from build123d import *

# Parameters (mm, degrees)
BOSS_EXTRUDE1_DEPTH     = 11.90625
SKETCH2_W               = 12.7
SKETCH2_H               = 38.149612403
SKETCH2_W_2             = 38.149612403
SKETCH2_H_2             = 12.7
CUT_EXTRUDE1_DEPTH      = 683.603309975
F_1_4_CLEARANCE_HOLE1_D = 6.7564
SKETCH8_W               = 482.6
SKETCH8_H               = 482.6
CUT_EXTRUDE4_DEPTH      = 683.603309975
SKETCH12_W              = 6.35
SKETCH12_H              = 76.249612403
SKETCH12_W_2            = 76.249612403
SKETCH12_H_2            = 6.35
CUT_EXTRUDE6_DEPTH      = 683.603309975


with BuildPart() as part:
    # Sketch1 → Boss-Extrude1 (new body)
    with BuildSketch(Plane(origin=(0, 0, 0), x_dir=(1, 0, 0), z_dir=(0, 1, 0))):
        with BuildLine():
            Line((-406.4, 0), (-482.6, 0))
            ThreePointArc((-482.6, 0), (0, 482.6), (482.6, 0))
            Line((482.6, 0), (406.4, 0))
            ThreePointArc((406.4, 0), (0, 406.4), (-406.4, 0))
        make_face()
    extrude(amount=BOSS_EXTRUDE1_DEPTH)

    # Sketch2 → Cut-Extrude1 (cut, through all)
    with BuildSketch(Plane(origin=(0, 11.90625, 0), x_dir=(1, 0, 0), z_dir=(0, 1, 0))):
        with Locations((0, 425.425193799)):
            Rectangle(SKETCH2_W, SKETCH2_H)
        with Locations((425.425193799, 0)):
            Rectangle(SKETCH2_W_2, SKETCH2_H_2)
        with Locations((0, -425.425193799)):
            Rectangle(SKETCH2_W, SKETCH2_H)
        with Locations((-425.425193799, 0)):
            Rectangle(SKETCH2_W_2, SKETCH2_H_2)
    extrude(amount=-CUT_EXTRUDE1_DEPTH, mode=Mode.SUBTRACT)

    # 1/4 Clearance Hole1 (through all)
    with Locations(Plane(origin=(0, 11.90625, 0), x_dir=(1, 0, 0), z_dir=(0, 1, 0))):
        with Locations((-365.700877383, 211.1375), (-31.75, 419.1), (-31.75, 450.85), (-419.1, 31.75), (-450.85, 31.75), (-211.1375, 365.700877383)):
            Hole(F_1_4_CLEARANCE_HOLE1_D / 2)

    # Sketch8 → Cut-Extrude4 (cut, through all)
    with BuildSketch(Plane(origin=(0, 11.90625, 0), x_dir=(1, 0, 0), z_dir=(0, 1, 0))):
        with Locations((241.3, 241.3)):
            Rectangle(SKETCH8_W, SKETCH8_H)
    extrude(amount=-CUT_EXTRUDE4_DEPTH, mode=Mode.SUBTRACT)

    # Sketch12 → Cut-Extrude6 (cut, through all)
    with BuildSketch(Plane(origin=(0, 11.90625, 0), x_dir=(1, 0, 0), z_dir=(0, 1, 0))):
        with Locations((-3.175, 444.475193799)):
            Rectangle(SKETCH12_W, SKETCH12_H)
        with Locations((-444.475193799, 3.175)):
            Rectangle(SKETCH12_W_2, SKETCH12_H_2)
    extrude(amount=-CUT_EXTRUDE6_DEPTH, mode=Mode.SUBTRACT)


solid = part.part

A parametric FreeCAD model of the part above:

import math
import FreeCAD as App
import Part
import Sketcher

V = App.Vector
Q = App.Units.Quantity

doc = App.newDocument("Part")
params = doc.addObject("Spreadsheet::Sheet", "Params")
for row, (alias, value) in enumerate([
    ("sketch1_radius", "16 in"),
    ("sketch1_radius2", "19 in"),
    ("pad1_length", "0.46875 in"),
    ("sketch2_width", "0.5 in"),
    ("sketch3_diameter", "0.266 in"),
    ("hole_diameter", "0.266 in"),
    ("sketch4_width", "19 in"),
    ("sketch5_width", "0.25 in"),
], start=1):
    params.set(f"A{row}", alias)
    params.set(f"B{row}", "=" + value)
    params.setAlias(f"B{row}", alias)

body = doc.addObject("PartDesign::Body", "Body")

# Sketch on XZ plane
sketch1 = doc.addObject("Sketcher::SketchObject", "Sketch")
body.addObject(sketch1)
sketch1.AttachmentSupport = (doc.XZ_Plane, [""])
sketch1.MapMode = "FlatFace"
sketch1.addGeometry([
    Part.LineSegment(V(-483, 0, 0), V(-406, 0, 0)),
    Part.ArcOfCircle(Part.Circle(V(0, 0, 0), V(0, 0, 1), 406), math.radians(180), math.radians(360)),
    Part.LineSegment(V(406, 0, 0), V(483, 0, 0)),
    Part.ArcOfCircle(Part.Circle(V(0, 0, 0), V(0, 0, 1), 483), math.radians(180), math.radians(360)),
], False)
sketch1.addConstraint([
    Sketcher.Constraint("Coincident", 0, 2, 1, 1),
    Sketcher.Constraint("Coincident", 1, 2, 2, 1),
    Sketcher.Constraint("Coincident", 2, 2, 3, 2),
    Sketcher.Constraint("Coincident", 3, 1, 0, 1),
    Sketcher.Constraint("Horizontal", 0),
    Sketcher.Constraint("Horizontal", 2),
    Sketcher.Constraint("Coincident", 1, 3, -1, 1),
    Sketcher.Constraint("Coincident", 3, 3, -1, 1),
    Sketcher.Constraint("PointOnObject", 0, 2, -1),
    Sketcher.Constraint("PointOnObject", 2, 2, -1),
    Sketcher.Constraint("Radius", 1, Q("16 in")),
    Sketcher.Constraint("Radius", 3, Q("19 in")),
])
sketch1.setExpression("Constraints[10]", "Params.sketch1_radius")
sketch1.setExpression("Constraints[11]", "Params.sketch1_radius2")
pad1 = doc.addObject("PartDesign::Pad", "Pad")
body.addObject(pad1)
pad1.Profile = sketch1
pad1.setExpression("Length", "Params.pad1_length")
pad1.Reversed = True

# Sketch on XZ plane
sketch2 = doc.addObject("Sketcher::SketchObject", "Sketch001")
body.addObject(sketch2)
sketch2.AttachmentSupport = (doc.XZ_Plane, [""])
sketch2.MapMode = "FlatFace"
sketch2.AttachmentOffset = App.Placement(V(0, 0, -0.46875 * 25.4), App.Rotation())
sketch2.addGeometry([
    Part.LineSegment(V(-6, -444, 0), V(-6, -406, 0)),  # 0
    Part.LineSegment(V(-6, -406, 0), V(6, -406, 0)),  # 1
    Part.LineSegment(V(6, -406, 0), V(6, -444, 0)),  # 2
    Part.LineSegment(V(6, -444, 0), V(-6, -444, 0)),  # 3
    Part.LineSegment(V(406, -6, 0), V(406, 6, 0)),  # 4
    Part.LineSegment(V(406, 6, 0), V(444, 6, 0)),  # 5
    Part.LineSegment(V(444, 6, 0), V(444, -6, 0)),  # 6
    Part.LineSegment(V(444, -6, 0), V(406, -6, 0)),  # 7
    Part.LineSegment(V(-6, 406, 0), V(-6, 444, 0)),  # 8
    Part.LineSegment(V(-6, 444, 0), V(6, 444, 0)),  # 9
    Part.LineSegment(V(6, 444, 0), V(6, 406, 0)),  # 10
    Part.LineSegment(V(6, 406, 0), V(-6, 406, 0)),  # 11
    Part.LineSegment(V(-444, -6, 0), V(-444, 6, 0)),  # 12
    Part.LineSegment(V(-444, 6, 0), V(-406, 6, 0)),  # 13
    Part.LineSegment(V(-406, 6, 0), V(-406, -6, 0)),  # 14
    Part.LineSegment(V(-406, -6, 0), V(-444, -6, 0)),  # 15
], False)
sketch2.addConstraint([
    Sketcher.Constraint("Coincident", 0, 2, 1, 1),
    Sketcher.Constraint("Coincident", 1, 2, 2, 1),
    Sketcher.Constraint("Coincident", 2, 2, 3, 1),
    Sketcher.Constraint("Coincident", 3, 2, 0, 1),
    Sketcher.Constraint("Coincident", 4, 2, 5, 1),
    Sketcher.Constraint("Coincident", 5, 2, 6, 1),
    Sketcher.Constraint("Coincident", 6, 2, 7, 1),
    Sketcher.Constraint("Coincident", 7, 2, 4, 1),
    Sketcher.Constraint("Coincident", 8, 2, 9, 1),
    Sketcher.Constraint("Coincident", 9, 2, 10, 1),
    Sketcher.Constraint("Coincident", 10, 2, 11, 1),
    Sketcher.Constraint("Coincident", 11, 2, 8, 1),
    Sketcher.Constraint("Coincident", 12, 2, 13, 1),
    Sketcher.Constraint("Coincident", 13, 2, 14, 1),
    Sketcher.Constraint("Coincident", 14, 2, 15, 1),
    Sketcher.Constraint("Coincident", 15, 2, 12, 1),
    Sketcher.Constraint("Vertical", 0),
    Sketcher.Constraint("Horizontal", 1),
    Sketcher.Constraint("Vertical", 2),
    Sketcher.Constraint("Horizontal", 3),
    Sketcher.Constraint("Vertical", 4),
    Sketcher.Constraint("Horizontal", 5),
    Sketcher.Constraint("Vertical", 6),
    Sketcher.Constraint("Horizontal", 7),
    Sketcher.Constraint("Vertical", 8),
    Sketcher.Constraint("Horizontal", 9),
    Sketcher.Constraint("Vertical", 10),
    Sketcher.Constraint("Horizontal", 11),
    Sketcher.Constraint("Vertical", 12),
    Sketcher.Constraint("Horizontal", 13),
    Sketcher.Constraint("Vertical", 14),
    Sketcher.Constraint("Horizontal", 15),
    Sketcher.Constraint("Symmetric", 2, 2, 8, 2, -1, 1),
    Sketcher.Constraint("Symmetric", 0, 2, 10, 2, -1, 1),
    Sketcher.Constraint("Symmetric", 6, 2, 12, 2, -1, 1),
    Sketcher.Constraint("Symmetric", 4, 2, 14, 2, -1, 1),
    Sketcher.Constraint("Horizontal", 5, 2, 12, 2),
    Sketcher.Constraint("Vertical", 3, 2, 8, 2),
    Sketcher.Constraint("Equal", 15, 0),
    Sketcher.Constraint("Equal", 11, 4),
    Sketcher.Constraint("DistanceX", 1, 1, 1, 2, Q("0.5 in")),
    Sketcher.Constraint("DistanceY", 2, 2, -1, 1, Q("17.5 in")),
    Sketcher.Constraint("DistanceX", -1, 1, 5, 2, Q("17.5 in")),
    Sketcher.Constraint("DistanceX", 5, 1, 5, 2, 38.149612),
])
sketch2.setExpression("Constraints[40]", "Params.sketch2_width")
pocket1 = doc.addObject("PartDesign::Pocket", "Pocket")
body.addObject(pocket1)
pocket1.Profile = sketch2
pocket1.Type = "ThroughAll"
pocket1.Reversed = True

# Sketch on XZ plane
sketch3 = doc.addObject("Sketcher::SketchObject", "Sketch002")
body.addObject(sketch3)
sketch3.AttachmentSupport = (doc.XZ_Plane, [""])
sketch3.MapMode = "FlatFace"
sketch3.AttachmentOffset = App.Placement(V(0, 0, -0.46875 * 25.4), App.Rotation())
sketch3.addGeometry([
    Part.Circle(V(-365.7, -211.1, 0), V(0, 0, 1), 3.4),  # 0
    Part.Circle(V(-31.8, -419.1, 0), V(0, 0, 1), 3.4),  # 1
    Part.Circle(V(-31.8, -450.9, 0), V(0, 0, 1), 3.4),  # 2
    Part.Circle(V(-419.1, -31.8, 0), V(0, 0, 1), 3.4),  # 3
    Part.Circle(V(-450.9, -31.8, 0), V(0, 0, 1), 3.4),  # 4
    Part.Circle(V(-211.1, -365.7, 0), V(0, 0, 1), 3.4),  # 5
], False)
sketch3.addConstraint([
    Sketcher.Constraint("Equal", 0, 1),
    Sketcher.Constraint("Equal", 1, 2),
    Sketcher.Constraint("Equal", 2, 3),
    Sketcher.Constraint("Equal", 3, 4),
    Sketcher.Constraint("Equal", 4, 5),
    Sketcher.Constraint("Horizontal", 3, 3, 4, 3),
    Sketcher.Constraint("Vertical", 1, 3, 2, 3),
    Sketcher.Constraint("Diameter", 0, Q("0.266 in")),
    Sketcher.Constraint("DistanceY", 1, 3, -1, 1, Q("16.5 in")),
    Sketcher.Constraint("DistanceX", 3, 3, -1, 1, Q("16.5 in")),
    Sketcher.Constraint("DistanceY", 2, 3, 3, 3, Q("16.5 in")),
    Sketcher.Constraint("DistanceX", 4, 3, 1, 3, Q("16.5 in")),
    Sketcher.Constraint("DistanceX", 1, 3, -1, 1, Q("1.25 in")),
    Sketcher.Constraint("DistanceY", 2, 3, -1, 1, Q("17.75 in")),
    Sketcher.Constraint("DistanceY", 0, 3, -1, 1, Q("8.3125 in")),
    Sketcher.Constraint("DistanceX", 5, 3, -1, 1, Q("8.3125 in")),
    Sketcher.Constraint("DistanceX", 0, 3, -1, 1, 365.700877),
    Sketcher.Constraint("DistanceY", 5, 3, -1, 1, 365.700877),
])
sketch3.setExpression("Constraints[7]", "Params.sketch3_diameter")
doc.recompute()
hole = doc.addObject("PartDesign::Hole", "Hole")
body.addObject(hole)
hole.Profile = sketch3
hole.ThreadType = "None"
hole.setExpression("Diameter", "Params.hole_diameter")
hole.DepthType = "ThroughAll"
hole.Reversed = True

# Sketch on XZ plane
sketch4 = doc.addObject("Sketcher::SketchObject", "Sketch003")
body.addObject(sketch4)
sketch4.AttachmentSupport = (doc.XZ_Plane, [""])
sketch4.MapMode = "FlatFace"
sketch4.AttachmentOffset = App.Placement(V(0, 0, -0.46875 * 25.4), App.Rotation())
sketch4.addGeometry([
    Part.LineSegment(V(0, -483, 0), V(0, 0, 0)),
    Part.LineSegment(V(0, 0, 0), V(483, 0, 0)),
    Part.LineSegment(V(483, 0, 0), V(483, -483, 0)),
    Part.LineSegment(V(483, -483, 0), V(0, -483, 0)),
], False)
sketch4.addConstraint([
    Sketcher.Constraint("Coincident", 0, 2, 1, 1),
    Sketcher.Constraint("Coincident", 1, 2, 2, 1),
    Sketcher.Constraint("Coincident", 2, 2, 3, 1),
    Sketcher.Constraint("Coincident", 3, 2, 0, 1),
    Sketcher.Constraint("Vertical", 0),
    Sketcher.Constraint("Horizontal", 1),
    Sketcher.Constraint("Vertical", 2),
    Sketcher.Constraint("Horizontal", 3),
    Sketcher.Constraint("Coincident", 0, 2, -1, 1),
    Sketcher.Constraint("Equal", 3, 0),
    Sketcher.Constraint("DistanceX", 1, 1, 1, 2, Q("19 in")),
])
sketch4.setExpression("Constraints[10]", "Params.sketch4_width")
pocket2 = doc.addObject("PartDesign::Pocket", "Pocket001")
body.addObject(pocket2)
pocket2.Profile = sketch4
pocket2.Type = "ThroughAll"
pocket2.Reversed = True

# Sketch on XZ plane
sketch5 = doc.addObject("Sketcher::SketchObject", "Sketch004")
body.addObject(sketch5)
sketch5.AttachmentSupport = (doc.XZ_Plane, [""])
sketch5.MapMode = "FlatFace"
sketch5.AttachmentOffset = App.Placement(V(0, 0, -0.46875 * 25.4), App.Rotation())
sketch5.addGeometry([
    Part.LineSegment(V(-6, -483, 0), V(-6, -406, 0)),  # 0
    Part.LineSegment(V(-6, -406, 0), V(0, -406, 0)),  # 1
    Part.LineSegment(V(0, -406, 0), V(0, -483, 0)),  # 2
    Part.LineSegment(V(0, -483, 0), V(-6, -483, 0)),  # 3
    Part.LineSegment(V(-483, -6, 0), V(-483, 0, 0)),  # 4
    Part.LineSegment(V(-483, 0, 0), V(-406, 0, 0)),  # 5
    Part.LineSegment(V(-406, 0, 0), V(-406, -6, 0)),  # 6
    Part.LineSegment(V(-406, -6, 0), V(-483, -6, 0)),  # 7
], False)
sketch5.addConstraint([
    Sketcher.Constraint("Coincident", 0, 2, 1, 1),
    Sketcher.Constraint("Coincident", 1, 2, 2, 1),
    Sketcher.Constraint("Coincident", 2, 2, 3, 1),
    Sketcher.Constraint("Coincident", 3, 2, 0, 1),
    Sketcher.Constraint("Coincident", 4, 2, 5, 1),
    Sketcher.Constraint("Coincident", 5, 2, 6, 1),
    Sketcher.Constraint("Coincident", 6, 2, 7, 1),
    Sketcher.Constraint("Coincident", 7, 2, 4, 1),
    Sketcher.Constraint("Vertical", 0),
    Sketcher.Constraint("Horizontal", 1),
    Sketcher.Constraint("Vertical", 2),
    Sketcher.Constraint("Horizontal", 3),
    Sketcher.Constraint("Vertical", 4),
    Sketcher.Constraint("Horizontal", 5),
    Sketcher.Constraint("Vertical", 6),
    Sketcher.Constraint("Horizontal", 7),
    Sketcher.Constraint("PointOnObject", 1, 2, -2),
    Sketcher.Constraint("PointOnObject", 4, 2, -1),
    Sketcher.Constraint("Equal", 7, 0),
    Sketcher.Constraint("Equal", 3, 4),
    Sketcher.Constraint("DistanceY", 2, 2, -1, 1, Q("19 in")),
    Sketcher.Constraint("DistanceX", 4, 2, -1, 1, Q("19 in")),
    Sketcher.Constraint("DistanceX", 1, 1, 1, 2, Q("0.25 in")),
    Sketcher.Constraint("DistanceX", 5, 1, 5, 2, 76.249612),
])
sketch5.setExpression("Constraints[22]", "Params.sketch5_width")
pocket3 = doc.addObject("PartDesign::Pocket", "Pocket002")
body.addObject(pocket3)
pocket3.Profile = sketch5
pocket3.Type = "ThroughAll"
pocket3.Reversed = True

doc.recompute()
